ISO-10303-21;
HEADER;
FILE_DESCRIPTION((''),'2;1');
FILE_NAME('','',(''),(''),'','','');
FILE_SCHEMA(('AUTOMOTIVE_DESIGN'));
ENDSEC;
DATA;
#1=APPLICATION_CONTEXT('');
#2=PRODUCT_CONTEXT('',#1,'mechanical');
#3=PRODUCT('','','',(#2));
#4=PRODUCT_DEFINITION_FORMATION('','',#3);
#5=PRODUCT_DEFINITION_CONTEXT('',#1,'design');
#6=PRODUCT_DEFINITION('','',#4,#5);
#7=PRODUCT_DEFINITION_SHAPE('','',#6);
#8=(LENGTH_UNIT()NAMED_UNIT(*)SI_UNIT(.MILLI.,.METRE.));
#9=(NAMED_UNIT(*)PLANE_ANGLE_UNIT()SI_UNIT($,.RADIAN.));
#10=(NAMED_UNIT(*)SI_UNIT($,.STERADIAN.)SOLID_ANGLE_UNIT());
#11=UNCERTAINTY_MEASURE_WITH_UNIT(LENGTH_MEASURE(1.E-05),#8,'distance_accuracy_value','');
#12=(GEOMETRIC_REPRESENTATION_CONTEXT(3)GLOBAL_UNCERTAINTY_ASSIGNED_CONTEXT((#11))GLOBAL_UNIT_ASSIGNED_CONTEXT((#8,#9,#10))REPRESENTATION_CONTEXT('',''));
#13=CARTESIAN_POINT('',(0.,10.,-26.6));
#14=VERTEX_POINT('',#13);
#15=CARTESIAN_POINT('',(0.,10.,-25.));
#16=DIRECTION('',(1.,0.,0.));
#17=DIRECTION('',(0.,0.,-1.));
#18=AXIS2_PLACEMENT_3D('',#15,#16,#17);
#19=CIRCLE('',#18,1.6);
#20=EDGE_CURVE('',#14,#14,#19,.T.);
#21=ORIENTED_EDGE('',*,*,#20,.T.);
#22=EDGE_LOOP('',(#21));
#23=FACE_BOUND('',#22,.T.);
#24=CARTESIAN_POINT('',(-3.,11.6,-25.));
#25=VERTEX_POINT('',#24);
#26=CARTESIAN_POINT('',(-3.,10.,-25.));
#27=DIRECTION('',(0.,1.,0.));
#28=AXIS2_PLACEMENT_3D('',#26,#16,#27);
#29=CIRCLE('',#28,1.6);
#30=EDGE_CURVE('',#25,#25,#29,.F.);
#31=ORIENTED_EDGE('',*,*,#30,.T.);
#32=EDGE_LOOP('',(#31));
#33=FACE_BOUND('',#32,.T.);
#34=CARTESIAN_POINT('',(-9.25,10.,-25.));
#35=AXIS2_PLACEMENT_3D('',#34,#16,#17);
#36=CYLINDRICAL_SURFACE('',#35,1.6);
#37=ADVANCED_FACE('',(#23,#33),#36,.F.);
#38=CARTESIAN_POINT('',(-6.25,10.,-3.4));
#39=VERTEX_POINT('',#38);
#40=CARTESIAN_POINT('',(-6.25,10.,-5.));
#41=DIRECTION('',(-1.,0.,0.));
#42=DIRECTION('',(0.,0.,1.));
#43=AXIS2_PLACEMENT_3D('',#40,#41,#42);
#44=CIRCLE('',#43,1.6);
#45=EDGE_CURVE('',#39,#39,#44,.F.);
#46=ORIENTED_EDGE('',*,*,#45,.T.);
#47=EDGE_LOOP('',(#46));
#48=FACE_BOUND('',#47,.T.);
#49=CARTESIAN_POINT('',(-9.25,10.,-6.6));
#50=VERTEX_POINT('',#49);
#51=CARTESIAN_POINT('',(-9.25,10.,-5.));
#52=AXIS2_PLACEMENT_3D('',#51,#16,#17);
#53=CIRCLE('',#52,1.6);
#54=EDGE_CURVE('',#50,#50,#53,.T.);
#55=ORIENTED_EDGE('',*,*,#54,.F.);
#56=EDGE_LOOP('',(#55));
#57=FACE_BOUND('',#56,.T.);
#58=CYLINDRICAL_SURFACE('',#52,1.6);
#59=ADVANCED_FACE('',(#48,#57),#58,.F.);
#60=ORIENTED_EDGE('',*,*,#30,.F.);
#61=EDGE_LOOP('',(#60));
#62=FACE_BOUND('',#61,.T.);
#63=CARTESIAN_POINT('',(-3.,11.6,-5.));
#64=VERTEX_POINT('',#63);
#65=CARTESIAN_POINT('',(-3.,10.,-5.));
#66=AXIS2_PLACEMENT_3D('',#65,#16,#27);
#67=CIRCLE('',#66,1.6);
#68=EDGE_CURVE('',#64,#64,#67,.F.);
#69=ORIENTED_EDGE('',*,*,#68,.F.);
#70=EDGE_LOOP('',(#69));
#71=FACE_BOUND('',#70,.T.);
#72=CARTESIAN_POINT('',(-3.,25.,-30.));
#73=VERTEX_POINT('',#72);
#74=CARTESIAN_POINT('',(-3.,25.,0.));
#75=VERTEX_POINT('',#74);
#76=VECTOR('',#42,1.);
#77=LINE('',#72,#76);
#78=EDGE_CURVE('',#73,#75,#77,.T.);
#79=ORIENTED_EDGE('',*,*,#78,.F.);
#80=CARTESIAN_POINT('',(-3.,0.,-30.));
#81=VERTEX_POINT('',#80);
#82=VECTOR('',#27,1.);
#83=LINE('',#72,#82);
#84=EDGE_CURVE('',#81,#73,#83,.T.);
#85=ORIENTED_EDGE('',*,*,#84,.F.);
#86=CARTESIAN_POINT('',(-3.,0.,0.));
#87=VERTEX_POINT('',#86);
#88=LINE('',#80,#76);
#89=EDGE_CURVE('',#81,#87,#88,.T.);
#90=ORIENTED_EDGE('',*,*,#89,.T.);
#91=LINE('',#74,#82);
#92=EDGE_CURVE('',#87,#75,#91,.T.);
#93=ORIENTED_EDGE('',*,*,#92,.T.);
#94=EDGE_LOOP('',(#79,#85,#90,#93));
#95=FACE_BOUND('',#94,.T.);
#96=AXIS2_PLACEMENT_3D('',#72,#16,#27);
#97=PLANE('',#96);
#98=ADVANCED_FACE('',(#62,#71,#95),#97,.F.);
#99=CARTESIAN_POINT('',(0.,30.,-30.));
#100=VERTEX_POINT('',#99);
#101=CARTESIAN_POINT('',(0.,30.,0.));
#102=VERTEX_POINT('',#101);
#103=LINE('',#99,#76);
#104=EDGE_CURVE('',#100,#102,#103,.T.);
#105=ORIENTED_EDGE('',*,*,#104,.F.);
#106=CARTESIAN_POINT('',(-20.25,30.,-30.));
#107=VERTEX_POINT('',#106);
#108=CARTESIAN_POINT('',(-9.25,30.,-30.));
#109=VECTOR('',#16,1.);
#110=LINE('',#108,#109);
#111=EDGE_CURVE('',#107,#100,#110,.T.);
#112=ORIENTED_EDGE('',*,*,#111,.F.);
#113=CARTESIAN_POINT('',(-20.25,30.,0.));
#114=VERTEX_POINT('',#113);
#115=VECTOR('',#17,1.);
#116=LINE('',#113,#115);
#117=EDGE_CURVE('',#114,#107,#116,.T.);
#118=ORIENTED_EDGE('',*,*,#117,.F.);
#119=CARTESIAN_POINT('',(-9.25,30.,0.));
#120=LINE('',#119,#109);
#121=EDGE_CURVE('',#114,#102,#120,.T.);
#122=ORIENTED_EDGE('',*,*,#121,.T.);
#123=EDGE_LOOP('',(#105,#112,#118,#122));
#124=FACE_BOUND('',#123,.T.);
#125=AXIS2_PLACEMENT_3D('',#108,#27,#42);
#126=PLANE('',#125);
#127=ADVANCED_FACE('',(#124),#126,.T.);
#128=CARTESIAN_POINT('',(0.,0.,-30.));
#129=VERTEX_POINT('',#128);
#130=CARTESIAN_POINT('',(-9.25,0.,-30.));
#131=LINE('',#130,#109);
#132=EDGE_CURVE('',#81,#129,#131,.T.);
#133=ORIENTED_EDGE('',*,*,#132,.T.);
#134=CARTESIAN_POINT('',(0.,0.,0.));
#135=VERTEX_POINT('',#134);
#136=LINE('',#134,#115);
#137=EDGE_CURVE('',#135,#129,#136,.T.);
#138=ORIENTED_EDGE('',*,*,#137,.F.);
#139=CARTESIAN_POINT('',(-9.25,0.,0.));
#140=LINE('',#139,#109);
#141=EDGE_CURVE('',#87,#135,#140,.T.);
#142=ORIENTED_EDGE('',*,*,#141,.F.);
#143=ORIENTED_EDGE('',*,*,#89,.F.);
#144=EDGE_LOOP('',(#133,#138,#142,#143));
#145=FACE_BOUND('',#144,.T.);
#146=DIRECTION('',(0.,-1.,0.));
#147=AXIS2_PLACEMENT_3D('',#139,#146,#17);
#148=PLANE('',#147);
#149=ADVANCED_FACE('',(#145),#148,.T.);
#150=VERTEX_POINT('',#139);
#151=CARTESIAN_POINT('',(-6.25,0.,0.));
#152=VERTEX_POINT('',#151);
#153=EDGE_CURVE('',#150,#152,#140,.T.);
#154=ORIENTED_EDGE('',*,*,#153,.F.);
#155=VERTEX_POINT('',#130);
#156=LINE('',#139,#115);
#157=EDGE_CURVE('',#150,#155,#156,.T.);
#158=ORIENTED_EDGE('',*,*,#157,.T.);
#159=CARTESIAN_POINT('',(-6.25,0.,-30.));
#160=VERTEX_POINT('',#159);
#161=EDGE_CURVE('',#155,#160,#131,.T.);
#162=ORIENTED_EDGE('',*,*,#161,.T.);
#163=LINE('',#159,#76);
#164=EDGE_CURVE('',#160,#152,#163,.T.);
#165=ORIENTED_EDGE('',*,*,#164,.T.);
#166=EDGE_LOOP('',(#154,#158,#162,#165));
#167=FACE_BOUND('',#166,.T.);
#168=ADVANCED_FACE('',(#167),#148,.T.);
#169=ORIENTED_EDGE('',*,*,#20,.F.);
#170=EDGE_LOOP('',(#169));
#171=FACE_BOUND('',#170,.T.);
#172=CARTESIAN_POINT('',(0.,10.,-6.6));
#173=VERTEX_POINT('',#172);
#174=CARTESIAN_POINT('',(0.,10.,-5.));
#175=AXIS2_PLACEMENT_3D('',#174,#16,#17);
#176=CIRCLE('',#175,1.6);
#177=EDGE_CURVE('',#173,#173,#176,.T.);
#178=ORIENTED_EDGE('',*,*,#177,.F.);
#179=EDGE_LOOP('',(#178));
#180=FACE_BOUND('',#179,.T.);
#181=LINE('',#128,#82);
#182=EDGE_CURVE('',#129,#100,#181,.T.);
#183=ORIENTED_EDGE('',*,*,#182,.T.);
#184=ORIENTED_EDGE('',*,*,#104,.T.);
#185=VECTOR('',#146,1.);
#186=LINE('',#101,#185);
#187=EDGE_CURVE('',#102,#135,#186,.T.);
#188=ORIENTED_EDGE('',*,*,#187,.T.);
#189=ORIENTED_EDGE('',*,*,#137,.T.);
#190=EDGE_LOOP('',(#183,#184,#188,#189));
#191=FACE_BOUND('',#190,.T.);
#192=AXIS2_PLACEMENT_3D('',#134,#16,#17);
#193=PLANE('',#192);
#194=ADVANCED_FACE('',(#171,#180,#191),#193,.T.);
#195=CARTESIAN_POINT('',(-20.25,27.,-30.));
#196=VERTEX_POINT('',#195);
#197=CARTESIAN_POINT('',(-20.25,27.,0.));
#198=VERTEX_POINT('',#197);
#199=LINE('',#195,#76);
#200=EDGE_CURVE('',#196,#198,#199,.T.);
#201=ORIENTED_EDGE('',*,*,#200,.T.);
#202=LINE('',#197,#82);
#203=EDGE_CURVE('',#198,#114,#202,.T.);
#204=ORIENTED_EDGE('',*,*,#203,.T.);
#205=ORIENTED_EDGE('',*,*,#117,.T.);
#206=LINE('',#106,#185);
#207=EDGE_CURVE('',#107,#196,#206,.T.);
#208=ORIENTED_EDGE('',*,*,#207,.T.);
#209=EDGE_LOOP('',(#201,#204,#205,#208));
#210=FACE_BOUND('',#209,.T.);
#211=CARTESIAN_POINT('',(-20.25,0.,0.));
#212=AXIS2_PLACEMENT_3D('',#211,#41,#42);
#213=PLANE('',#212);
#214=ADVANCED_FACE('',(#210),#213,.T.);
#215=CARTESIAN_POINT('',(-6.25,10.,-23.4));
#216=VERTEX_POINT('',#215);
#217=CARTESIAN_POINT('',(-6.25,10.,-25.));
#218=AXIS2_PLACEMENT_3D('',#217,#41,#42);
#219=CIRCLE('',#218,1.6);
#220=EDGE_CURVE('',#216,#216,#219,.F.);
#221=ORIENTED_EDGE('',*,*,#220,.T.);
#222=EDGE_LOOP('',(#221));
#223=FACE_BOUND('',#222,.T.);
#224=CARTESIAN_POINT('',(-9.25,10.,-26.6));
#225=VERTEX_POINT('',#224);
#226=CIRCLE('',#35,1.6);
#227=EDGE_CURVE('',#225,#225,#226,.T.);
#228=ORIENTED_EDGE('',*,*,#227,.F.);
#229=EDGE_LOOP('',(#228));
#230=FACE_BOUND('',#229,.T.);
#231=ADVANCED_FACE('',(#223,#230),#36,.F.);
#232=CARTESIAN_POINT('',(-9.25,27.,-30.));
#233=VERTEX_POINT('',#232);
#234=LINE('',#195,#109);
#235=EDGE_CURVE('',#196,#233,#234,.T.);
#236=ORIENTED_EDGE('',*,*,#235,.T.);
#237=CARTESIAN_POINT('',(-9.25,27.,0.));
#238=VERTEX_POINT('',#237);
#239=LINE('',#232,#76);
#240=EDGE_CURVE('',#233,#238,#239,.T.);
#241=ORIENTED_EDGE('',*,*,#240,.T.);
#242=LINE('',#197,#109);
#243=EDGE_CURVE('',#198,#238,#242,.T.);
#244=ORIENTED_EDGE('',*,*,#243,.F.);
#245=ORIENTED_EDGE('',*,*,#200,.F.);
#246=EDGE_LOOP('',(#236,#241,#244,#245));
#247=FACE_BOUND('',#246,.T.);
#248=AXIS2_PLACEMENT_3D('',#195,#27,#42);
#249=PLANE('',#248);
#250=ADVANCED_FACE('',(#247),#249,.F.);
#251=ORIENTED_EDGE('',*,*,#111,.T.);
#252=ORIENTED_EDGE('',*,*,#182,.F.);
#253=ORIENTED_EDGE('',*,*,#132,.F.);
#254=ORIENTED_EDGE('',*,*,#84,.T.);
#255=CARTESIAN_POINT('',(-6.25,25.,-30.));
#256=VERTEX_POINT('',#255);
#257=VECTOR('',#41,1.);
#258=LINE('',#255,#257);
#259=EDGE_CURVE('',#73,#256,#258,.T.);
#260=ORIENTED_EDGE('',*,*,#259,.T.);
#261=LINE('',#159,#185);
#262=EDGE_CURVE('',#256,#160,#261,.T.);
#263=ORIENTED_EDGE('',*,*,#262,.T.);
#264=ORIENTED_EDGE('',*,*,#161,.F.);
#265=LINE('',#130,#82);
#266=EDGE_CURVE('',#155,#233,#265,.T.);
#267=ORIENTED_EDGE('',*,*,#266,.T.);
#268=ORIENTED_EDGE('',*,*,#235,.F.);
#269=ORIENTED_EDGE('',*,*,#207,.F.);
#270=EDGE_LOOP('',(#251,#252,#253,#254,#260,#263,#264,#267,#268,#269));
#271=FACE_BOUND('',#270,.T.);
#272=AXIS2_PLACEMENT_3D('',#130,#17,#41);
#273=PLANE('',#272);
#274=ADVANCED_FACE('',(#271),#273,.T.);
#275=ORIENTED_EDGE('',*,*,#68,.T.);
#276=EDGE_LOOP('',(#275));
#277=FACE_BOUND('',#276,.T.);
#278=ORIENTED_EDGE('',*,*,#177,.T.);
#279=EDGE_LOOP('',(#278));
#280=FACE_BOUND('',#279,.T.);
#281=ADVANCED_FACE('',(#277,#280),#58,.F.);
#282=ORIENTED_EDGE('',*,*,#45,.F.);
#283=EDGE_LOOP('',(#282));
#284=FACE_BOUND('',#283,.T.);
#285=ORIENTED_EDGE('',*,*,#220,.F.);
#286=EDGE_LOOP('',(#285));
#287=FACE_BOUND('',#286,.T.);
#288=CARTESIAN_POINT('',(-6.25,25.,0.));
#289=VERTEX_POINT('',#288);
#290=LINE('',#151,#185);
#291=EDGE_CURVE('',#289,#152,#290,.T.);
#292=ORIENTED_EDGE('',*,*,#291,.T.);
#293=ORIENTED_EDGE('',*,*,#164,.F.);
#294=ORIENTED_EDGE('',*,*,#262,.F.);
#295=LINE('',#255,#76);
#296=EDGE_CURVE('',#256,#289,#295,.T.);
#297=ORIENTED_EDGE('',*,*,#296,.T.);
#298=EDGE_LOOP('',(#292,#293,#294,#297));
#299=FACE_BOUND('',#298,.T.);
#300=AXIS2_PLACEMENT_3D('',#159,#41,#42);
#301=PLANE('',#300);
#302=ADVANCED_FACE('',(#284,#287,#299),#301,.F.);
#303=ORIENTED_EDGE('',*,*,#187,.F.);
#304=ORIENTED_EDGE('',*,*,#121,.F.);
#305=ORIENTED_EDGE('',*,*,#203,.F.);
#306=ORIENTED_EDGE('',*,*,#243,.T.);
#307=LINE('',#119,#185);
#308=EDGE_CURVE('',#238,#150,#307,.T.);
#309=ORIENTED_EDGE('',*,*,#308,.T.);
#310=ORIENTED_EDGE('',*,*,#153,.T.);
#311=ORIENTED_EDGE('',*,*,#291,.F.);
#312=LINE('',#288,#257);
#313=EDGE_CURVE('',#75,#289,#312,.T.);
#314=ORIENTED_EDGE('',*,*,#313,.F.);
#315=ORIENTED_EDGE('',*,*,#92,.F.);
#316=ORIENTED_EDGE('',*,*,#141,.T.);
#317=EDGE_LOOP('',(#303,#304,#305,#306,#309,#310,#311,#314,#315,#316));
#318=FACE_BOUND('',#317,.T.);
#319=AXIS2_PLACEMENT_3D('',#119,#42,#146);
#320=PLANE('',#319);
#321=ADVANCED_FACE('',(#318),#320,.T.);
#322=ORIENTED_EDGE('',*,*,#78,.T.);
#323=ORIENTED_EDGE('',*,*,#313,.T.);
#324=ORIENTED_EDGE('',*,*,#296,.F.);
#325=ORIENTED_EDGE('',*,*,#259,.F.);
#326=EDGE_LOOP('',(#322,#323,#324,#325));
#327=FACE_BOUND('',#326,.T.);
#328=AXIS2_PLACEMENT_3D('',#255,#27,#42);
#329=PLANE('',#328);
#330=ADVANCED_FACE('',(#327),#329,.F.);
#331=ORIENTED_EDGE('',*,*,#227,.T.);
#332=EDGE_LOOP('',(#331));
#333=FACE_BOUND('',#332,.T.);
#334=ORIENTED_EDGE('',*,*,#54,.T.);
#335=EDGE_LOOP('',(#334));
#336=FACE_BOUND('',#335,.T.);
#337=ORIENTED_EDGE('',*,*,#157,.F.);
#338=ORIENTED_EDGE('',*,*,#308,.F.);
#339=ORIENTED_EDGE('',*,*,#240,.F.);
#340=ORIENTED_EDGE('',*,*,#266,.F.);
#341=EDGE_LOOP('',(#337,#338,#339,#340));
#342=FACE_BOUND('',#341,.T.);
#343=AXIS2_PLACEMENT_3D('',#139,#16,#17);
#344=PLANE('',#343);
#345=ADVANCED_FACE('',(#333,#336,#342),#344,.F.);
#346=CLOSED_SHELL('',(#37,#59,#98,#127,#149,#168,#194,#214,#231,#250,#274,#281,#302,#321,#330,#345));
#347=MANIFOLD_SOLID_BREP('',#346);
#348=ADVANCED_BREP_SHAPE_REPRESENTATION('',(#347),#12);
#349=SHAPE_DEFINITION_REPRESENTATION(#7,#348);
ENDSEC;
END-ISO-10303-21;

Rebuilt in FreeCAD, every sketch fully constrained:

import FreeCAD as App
import Part
import Sketcher

V = App.Vector
Q = App.Units.Quantity

doc = App.newDocument("Part")
body = doc.addObject("PartDesign::Body", "Body")

sketch1 = body.newObject("Sketcher::SketchObject", "Sketch")
sketch1.AttachmentSupport = (doc.getObject("YZ_Plane"), [""])
sketch1.MapMode = "FlatFace"
sketch1.addGeometry(Part.LineSegment(V(30, 0, 0), V(0, 0, 0)), False)
sketch1.addGeometry(Part.LineSegment(V(0, 0, 0), V(0, -30, 0)), False)
sketch1.addGeometry(Part.LineSegment(V(0, -30, 0), V(30, -30, 0)), False)
sketch1.addGeometry(Part.LineSegment(V(30, -30, 0), V(30, 0, 0)), False)
sketch1.addGeometry(Part.Circle(V(10, -5, 0), V(0, 0, 1), 1.6), False)
sketch1.addGeometry(Part.Circle(V(10, -25, 0), V(0, 0, 1), 1.6), False)
sketch1.addConstraint(Sketcher.Constraint("Coincident", 0, 2, 1, 1))
sketch1.addConstraint(Sketcher.Constraint("Coincident", 1, 2, 2, 1))
sketch1.addConstraint(Sketcher.Constraint("Coincident", 2, 2, 3, 1))
sketch1.addConstraint(Sketcher.Constraint("Coincident", 3, 2, 0, 1))
sketch1.addConstraint(Sketcher.Constraint("Horizontal", 0))
sketch1.addConstraint(Sketcher.Constraint("Vertical", 1))
sketch1.addConstraint(Sketcher.Constraint("Horizontal", 2))
sketch1.addConstraint(Sketcher.Constraint("Vertical", 3))
sketch1.addConstraint(Sketcher.Constraint("Coincident", 0, 2, -1, 1))
sketch1.addConstraint(Sketcher.Constraint("Equal", 4, 5))
sketch1.addConstraint(Sketcher.Constraint("Vertical", 4, 3, 5, 3))
sketch1.addConstraint(Sketcher.Constraint("Equal", 2, 1))
sketch1.addConstraint(Sketcher.Constraint("Diameter", 4, Q("3.2 mm")))
sketch1.addConstraint(Sketcher.Constraint("DistanceX", 0, 2, 0, 1, Q("30 mm")))
sketch1.addConstraint(Sketcher.Constraint("DistanceX", -1, 1, 4, 3, Q("10 mm")))
sketch1.addConstraint(Sketcher.Constraint("DistanceY", 4, 3, -1, 1, Q("5 mm")))
sketch1.addConstraint(Sketcher.Constraint("DistanceY", 5, 3, -1, 1, Q("25 mm")))
pad1 = body.newObject("PartDesign::Pad", "Pad")
pad1.Profile = sketch1
pad1.Length = 9.25
pad1.Reversed = True

sketch2 = body.newObject("Sketcher::SketchObject", "Sketch001")
sketch2.AttachmentSupport = (doc.getObject("XY_Plane"), [""])
sketch2.MapMode = "FlatFace"
sketch2.addGeometry(Part.LineSegment(V(-6.2, 25, 0), V(-6.2, 0, 0)), False)
sketch2.addGeometry(Part.LineSegment(V(-6.2, 0, 0), V(-3, 0, 0)), False)
sketch2.addGeometry(Part.LineSegment(V(-3, 0, 0), V(-3, 25, 0)), False)
sketch2.addGeometry(Part.LineSegment(V(-3, 25, 0), V(-6.2, 25, 0)), False)
sketch2.addConstraint(Sketcher.Constraint("Coincident", 0, 2, 1, 1))
sketch2.addConstraint(Sketcher.Constraint("Coincident", 1, 2, 2, 1))
sketch2.addConstraint(Sketcher.Constraint("Coincident", 2, 2, 3, 1))
sketch2.addConstraint(Sketcher.Constraint("Coincident", 3, 2, 0, 1))
sketch2.addConstraint(Sketcher.Constraint("Vertical", 0))
sketch2.addConstraint(Sketcher.Constraint("Horizontal", 1))
sketch2.addConstraint(Sketcher.Constraint("Vertical", 2))
sketch2.addConstraint(Sketcher.Constraint("Horizontal", 3))
sketch2.addConstraint(Sketcher.Constraint("PointOnObject", 0, 2, -1))
sketch2.addConstraint(Sketcher.Constraint("DistanceY", 0, 2, 0, 1, Q("25 mm")))
sketch2.addConstraint(Sketcher.Constraint("DistanceX", 1, 2, -1, 1, Q("3 mm")))
sketch2.addConstraint(Sketcher.Constraint("DistanceX", 1, 1, 1, 2, Q("3.25 mm")))
pocket1 = body.newObject("PartDesign::Pocket", "Pocket")
pocket1.Profile = sketch2
pocket1.Type = "ThroughAll"

sketch3 = body.newObject("Sketcher::SketchObject", "Sketch002")
sketch3.AttachmentSupport = (doc.getObject("YZ_Plane"), [""])
sketch3.MapMode = "FlatFace"
sketch3.AttachmentOffset = App.Placement(V(0, 0, -9.25), App.Rotation())
sketch3.addGeometry(Part.LineSegment(V(30, -30, 0), V(27, -30, 0)), False)
sketch3.addGeometry(Part.LineSegment(V(27, -30, 0), V(27, 0, 0)), False)
sketch3.addGeometry(Part.LineSegment(V(27, 0, 0), V(30, 0, 0)), False)
sketch3.addGeometry(Part.LineSegment(V(30, 0, 0), V(30, -30, 0)), False)
sketch3.addConstraint(Sketcher.Constraint("Coincident", 0, 2, 1, 1))
sketch3.addConstraint(Sketcher.Constraint("Coincident", 1, 2, 2, 1))
sketch3.addConstraint(Sketcher.Constraint("Coincident", 2, 2, 3, 1))
sketch3.addConstraint(Sketcher.Constraint("Coincident", 3, 2, 0, 1))
sketch3.addConstraint(Sketcher.Constraint("Horizontal", 0))
sketch3.addConstraint(Sketcher.Constraint("Vertical", 1))
sketch3.addConstraint(Sketcher.Constraint("Horizontal", 2))
sketch3.addConstraint(Sketcher.Constraint("Vertical", 3))
sketch3.addConstraint(Sketcher.Constraint("PointOnObject", 1, 2, -1))
sketch3.addConstraint(Sketcher.Constraint("DistanceX", 0, 2, 0, 1, Q("3 mm")))
sketch3.addConstraint(Sketcher.Constraint("DistanceY", 1, 1, 1, 2, Q("30 mm")))
sketch3.addConstraint(Sketcher.Constraint("DistanceX", -1, 1, 0, 2, Q("27 mm")))
pad2 = body.newObject("PartDesign::Pad", "Pad001")
pad2.Profile = sketch3
pad2.Length = 11
pad2.Reversed = True

doc.recompute()
